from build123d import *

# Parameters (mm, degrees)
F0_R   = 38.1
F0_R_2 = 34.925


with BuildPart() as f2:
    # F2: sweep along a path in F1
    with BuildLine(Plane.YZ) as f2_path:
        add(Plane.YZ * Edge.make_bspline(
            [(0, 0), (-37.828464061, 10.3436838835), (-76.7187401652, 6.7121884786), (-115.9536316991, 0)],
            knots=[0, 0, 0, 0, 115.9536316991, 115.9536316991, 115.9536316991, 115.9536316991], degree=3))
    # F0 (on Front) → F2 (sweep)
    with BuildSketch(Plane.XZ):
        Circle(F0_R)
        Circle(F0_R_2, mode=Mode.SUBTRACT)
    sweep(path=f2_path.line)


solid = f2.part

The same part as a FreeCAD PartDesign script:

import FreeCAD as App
import Part
import Sketcher
Q = App.Units.Quantity

doc = App.newDocument("Part")
body = doc.addObject("PartDesign::Body", "Body")

# Sketch on XZ plane
sketch1 = body.newObject("Sketcher::SketchObject", "Sketch")
sketch1.AttachmentSupport = (doc.getObject("XZ_Plane"), [""])
sketch1.MapMode = "FlatFace"
sketch1.addGeometry([
    Part.Circle(App.Vector(0, 0, 0), App.Vector(0, 0, 1), 38.1),
    Part.Circle(App.Vector(0, 0, 0), App.Vector(0, 0, 1), 34.925),
], False)
sketch1.addConstraint([
    Sketcher.Constraint("Coincident", 0, 3, -1, 1),
    Sketcher.Constraint("Coincident", 1, 3, -1, 1),
    Sketcher.Constraint("Diameter", 0, Q("3 in")),
    Sketcher.Constraint("Diameter", 1, Q("2.75 in")),
])

# Sketch on YZ plane
sketch2 = body.newObject("Sketcher::SketchObject", "Sketch001")
sketch2.AttachmentSupport = (doc.getObject("YZ_Plane"), [""])
sketch2.MapMode = "FlatFace"
sketch2.addGeometry(Part.BSplineCurve([App.Vector(0, 0, 0), App.Vector(-37.828464, 10.343684, 0), App.Vector(-76.71874, 6.712188, 0), App.Vector(-115.953632, 0, 0)], [4, 4], [0, 115.953631699], False, 3, [1, 1, 1, 1], False), False)
sketch2.addConstraint(Sketcher.Constraint("Block", 0))
doc.recompute()

additivepipe = body.newObject("PartDesign::AdditivePipe", "AdditivePipe")
additivepipe.Profile = sketch1
additivepipe.Spine = (sketch2, ["Edge1"])

doc.recompute()
